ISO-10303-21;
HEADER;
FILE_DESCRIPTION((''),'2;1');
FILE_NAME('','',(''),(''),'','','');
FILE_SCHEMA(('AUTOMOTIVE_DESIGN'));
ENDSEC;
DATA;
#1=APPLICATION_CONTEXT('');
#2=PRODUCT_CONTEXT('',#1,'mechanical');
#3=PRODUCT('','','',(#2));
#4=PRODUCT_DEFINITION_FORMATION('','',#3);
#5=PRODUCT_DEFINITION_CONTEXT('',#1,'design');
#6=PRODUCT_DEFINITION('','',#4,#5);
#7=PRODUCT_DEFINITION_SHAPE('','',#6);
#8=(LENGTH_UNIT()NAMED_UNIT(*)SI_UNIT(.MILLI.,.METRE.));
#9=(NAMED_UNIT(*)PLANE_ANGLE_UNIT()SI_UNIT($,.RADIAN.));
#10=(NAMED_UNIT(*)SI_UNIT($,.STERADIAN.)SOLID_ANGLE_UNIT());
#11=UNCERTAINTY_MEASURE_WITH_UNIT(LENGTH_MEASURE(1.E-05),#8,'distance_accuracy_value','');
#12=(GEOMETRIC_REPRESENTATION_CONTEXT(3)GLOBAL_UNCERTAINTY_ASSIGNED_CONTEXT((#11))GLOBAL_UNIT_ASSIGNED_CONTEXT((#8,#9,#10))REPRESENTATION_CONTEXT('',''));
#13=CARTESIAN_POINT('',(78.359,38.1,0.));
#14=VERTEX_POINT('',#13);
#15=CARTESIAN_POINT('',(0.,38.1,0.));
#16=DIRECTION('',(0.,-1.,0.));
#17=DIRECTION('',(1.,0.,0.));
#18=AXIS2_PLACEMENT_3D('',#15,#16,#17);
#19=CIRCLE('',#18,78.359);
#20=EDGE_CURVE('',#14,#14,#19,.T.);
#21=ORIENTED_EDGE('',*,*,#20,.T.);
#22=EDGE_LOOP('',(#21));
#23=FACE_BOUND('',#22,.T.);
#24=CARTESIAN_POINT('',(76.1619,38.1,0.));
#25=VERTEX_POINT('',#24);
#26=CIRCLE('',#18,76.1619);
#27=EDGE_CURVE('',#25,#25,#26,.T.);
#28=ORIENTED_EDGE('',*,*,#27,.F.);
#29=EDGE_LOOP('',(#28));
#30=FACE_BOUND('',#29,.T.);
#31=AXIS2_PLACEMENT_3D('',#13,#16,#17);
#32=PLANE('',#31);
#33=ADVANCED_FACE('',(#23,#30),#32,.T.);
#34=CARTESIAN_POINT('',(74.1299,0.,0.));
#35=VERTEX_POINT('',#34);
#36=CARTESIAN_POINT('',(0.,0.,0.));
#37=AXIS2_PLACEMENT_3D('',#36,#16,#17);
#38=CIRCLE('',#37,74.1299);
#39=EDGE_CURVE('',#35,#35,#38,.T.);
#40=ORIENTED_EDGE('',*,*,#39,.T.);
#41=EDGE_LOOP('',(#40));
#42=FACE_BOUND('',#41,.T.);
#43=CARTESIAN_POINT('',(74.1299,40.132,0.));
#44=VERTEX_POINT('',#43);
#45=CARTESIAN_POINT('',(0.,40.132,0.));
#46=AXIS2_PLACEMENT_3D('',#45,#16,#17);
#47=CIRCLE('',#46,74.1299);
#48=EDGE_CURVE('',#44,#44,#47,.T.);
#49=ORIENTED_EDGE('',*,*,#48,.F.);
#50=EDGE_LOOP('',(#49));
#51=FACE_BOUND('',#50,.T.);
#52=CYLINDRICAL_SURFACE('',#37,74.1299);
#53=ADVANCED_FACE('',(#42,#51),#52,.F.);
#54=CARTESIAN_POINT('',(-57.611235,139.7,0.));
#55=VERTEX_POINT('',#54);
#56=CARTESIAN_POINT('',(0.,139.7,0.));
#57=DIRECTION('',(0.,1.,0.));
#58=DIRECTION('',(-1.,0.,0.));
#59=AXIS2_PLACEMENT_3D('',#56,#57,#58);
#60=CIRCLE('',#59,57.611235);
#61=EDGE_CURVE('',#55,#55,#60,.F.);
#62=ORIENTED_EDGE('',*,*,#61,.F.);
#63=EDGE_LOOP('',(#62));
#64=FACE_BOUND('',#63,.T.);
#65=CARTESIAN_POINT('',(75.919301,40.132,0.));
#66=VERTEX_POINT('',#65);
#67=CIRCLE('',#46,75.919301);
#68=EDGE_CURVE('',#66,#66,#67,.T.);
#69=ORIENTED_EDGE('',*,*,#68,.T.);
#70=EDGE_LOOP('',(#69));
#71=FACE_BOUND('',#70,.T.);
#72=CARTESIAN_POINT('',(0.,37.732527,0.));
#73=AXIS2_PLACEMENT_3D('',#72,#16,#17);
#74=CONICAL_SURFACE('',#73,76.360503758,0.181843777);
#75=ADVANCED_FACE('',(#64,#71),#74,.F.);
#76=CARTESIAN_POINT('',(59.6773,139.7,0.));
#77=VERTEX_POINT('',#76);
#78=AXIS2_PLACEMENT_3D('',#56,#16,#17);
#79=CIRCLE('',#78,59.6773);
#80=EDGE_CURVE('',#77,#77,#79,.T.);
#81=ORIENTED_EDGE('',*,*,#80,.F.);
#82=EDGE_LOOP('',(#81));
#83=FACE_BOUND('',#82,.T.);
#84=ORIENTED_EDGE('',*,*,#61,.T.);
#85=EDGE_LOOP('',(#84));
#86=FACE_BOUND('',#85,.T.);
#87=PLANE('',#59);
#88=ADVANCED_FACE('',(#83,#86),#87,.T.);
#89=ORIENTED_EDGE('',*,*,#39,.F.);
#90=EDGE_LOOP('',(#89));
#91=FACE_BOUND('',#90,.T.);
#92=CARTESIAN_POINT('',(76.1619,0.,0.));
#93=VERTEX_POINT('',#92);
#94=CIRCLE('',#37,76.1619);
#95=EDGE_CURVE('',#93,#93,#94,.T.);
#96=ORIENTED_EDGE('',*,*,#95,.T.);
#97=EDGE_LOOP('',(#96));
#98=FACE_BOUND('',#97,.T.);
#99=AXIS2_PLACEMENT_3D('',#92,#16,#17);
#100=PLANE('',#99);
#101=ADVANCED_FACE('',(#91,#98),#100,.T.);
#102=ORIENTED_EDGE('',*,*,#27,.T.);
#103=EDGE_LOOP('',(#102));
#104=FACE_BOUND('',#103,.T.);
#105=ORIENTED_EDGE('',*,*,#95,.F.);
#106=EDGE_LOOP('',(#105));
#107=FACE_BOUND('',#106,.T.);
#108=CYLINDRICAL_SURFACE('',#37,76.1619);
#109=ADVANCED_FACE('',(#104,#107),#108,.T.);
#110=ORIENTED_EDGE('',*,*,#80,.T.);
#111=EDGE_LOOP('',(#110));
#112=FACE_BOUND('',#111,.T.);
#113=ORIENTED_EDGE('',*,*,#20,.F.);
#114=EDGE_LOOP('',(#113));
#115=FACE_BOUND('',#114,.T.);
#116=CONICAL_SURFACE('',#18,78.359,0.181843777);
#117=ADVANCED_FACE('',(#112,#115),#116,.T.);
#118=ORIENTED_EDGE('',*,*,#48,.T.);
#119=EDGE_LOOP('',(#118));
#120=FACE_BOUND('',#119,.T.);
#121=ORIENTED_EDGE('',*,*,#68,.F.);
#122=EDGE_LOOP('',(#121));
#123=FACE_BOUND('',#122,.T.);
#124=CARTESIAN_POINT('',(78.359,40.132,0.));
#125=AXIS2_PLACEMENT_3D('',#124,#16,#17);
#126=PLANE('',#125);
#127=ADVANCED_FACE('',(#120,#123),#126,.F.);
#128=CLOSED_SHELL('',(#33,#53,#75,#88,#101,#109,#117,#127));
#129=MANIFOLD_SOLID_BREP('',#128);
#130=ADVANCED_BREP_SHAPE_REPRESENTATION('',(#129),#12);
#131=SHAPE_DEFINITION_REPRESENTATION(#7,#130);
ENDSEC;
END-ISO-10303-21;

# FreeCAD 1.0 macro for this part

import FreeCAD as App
import Part
import Sketcher

V = App.Vector
Q = App.Units.Quantity


def faces_at(feature, points):
    """Names of the faces that lie closest to the given points."""
    faces = feature.Shape.Faces
    near = lambda p: min(range(len(faces)), key=lambda i: faces[i].distToShape(Part.Vertex(*p))[0])
    return sorted({f"Face{near(p) + 1}" for p in points})


def add_polygon(sketch, points):
    """Adds a closed chain of lines whose ends are joined by coincident constraints."""
    first, n = sketch.GeometryCount, len(points)
    for a, b in zip(points, points[1:] + points[:1]):
        sketch.addGeometry(Part.LineSegment(App.Vector(*a, 0), App.Vector(*b, 0)), False)
    for i in range(n):
        sketch.addConstraint(Sketcher.Constraint("Coincident", first + i, 2, first + (i + 1) % n, 1))

doc = App.newDocument("Part")
body = doc.addObject("PartDesign::Body", "Body")

sketch1 = body.newObject("Sketcher::SketchObject", "Sketch")
sketch1.AttachmentSupport = (doc.getObject("XY_Plane"), [""])
sketch1.MapMode = "FlatFace"
add_polygon(sketch1, [(59.7, 139.7), (0, 139.7), (0, 0), (76.2, 0), (76.2, 38.1), (78.4, 38.1)])
sketch1.addConstraint([
    Sketcher.Constraint("Horizontal", 0),
    Sketcher.Constraint("Vertical", 1),
    Sketcher.Constraint("Horizontal", 2),
    Sketcher.Constraint("Vertical", 3),
    Sketcher.Constraint("Horizontal", 4),
    Sketcher.Constraint("Coincident", 1, 2, -1, 1),
    Sketcher.Constraint("DistanceY", 1, 2, 1, 1, Q("5.5 in")),
    Sketcher.Constraint("DistanceY", 3, 1, 3, 2, Q("1.5 in")),
    Sketcher.Constraint("DistanceX", 0, 2, 0, 1, Q("2.3495 in")),
    Sketcher.Constraint("DistanceX", 2, 1, 2, 2, Q("2.9985 in")),
    Sketcher.Constraint("DistanceX", 4, 1, 4, 2, Q("0.0865 in")),
])
revolution = body.newObject("PartDesign::Revolution", "Revolution")
revolution.Profile = sketch1
revolution.ReferenceAxis = (sketch1, ["V_Axis"])
revolution.Angle = 360
doc.recompute()

thickness = body.newObject("PartDesign::Thickness", "Thickness")
thickness.Base = (revolution, faces_at(revolution, [(0, 0, 0), (0, 139.7, 0)]))
thickness.Value = Q("0.08 in")
thickness.Reversed = True
thickness.Join = "Intersection"

doc.recompute()
